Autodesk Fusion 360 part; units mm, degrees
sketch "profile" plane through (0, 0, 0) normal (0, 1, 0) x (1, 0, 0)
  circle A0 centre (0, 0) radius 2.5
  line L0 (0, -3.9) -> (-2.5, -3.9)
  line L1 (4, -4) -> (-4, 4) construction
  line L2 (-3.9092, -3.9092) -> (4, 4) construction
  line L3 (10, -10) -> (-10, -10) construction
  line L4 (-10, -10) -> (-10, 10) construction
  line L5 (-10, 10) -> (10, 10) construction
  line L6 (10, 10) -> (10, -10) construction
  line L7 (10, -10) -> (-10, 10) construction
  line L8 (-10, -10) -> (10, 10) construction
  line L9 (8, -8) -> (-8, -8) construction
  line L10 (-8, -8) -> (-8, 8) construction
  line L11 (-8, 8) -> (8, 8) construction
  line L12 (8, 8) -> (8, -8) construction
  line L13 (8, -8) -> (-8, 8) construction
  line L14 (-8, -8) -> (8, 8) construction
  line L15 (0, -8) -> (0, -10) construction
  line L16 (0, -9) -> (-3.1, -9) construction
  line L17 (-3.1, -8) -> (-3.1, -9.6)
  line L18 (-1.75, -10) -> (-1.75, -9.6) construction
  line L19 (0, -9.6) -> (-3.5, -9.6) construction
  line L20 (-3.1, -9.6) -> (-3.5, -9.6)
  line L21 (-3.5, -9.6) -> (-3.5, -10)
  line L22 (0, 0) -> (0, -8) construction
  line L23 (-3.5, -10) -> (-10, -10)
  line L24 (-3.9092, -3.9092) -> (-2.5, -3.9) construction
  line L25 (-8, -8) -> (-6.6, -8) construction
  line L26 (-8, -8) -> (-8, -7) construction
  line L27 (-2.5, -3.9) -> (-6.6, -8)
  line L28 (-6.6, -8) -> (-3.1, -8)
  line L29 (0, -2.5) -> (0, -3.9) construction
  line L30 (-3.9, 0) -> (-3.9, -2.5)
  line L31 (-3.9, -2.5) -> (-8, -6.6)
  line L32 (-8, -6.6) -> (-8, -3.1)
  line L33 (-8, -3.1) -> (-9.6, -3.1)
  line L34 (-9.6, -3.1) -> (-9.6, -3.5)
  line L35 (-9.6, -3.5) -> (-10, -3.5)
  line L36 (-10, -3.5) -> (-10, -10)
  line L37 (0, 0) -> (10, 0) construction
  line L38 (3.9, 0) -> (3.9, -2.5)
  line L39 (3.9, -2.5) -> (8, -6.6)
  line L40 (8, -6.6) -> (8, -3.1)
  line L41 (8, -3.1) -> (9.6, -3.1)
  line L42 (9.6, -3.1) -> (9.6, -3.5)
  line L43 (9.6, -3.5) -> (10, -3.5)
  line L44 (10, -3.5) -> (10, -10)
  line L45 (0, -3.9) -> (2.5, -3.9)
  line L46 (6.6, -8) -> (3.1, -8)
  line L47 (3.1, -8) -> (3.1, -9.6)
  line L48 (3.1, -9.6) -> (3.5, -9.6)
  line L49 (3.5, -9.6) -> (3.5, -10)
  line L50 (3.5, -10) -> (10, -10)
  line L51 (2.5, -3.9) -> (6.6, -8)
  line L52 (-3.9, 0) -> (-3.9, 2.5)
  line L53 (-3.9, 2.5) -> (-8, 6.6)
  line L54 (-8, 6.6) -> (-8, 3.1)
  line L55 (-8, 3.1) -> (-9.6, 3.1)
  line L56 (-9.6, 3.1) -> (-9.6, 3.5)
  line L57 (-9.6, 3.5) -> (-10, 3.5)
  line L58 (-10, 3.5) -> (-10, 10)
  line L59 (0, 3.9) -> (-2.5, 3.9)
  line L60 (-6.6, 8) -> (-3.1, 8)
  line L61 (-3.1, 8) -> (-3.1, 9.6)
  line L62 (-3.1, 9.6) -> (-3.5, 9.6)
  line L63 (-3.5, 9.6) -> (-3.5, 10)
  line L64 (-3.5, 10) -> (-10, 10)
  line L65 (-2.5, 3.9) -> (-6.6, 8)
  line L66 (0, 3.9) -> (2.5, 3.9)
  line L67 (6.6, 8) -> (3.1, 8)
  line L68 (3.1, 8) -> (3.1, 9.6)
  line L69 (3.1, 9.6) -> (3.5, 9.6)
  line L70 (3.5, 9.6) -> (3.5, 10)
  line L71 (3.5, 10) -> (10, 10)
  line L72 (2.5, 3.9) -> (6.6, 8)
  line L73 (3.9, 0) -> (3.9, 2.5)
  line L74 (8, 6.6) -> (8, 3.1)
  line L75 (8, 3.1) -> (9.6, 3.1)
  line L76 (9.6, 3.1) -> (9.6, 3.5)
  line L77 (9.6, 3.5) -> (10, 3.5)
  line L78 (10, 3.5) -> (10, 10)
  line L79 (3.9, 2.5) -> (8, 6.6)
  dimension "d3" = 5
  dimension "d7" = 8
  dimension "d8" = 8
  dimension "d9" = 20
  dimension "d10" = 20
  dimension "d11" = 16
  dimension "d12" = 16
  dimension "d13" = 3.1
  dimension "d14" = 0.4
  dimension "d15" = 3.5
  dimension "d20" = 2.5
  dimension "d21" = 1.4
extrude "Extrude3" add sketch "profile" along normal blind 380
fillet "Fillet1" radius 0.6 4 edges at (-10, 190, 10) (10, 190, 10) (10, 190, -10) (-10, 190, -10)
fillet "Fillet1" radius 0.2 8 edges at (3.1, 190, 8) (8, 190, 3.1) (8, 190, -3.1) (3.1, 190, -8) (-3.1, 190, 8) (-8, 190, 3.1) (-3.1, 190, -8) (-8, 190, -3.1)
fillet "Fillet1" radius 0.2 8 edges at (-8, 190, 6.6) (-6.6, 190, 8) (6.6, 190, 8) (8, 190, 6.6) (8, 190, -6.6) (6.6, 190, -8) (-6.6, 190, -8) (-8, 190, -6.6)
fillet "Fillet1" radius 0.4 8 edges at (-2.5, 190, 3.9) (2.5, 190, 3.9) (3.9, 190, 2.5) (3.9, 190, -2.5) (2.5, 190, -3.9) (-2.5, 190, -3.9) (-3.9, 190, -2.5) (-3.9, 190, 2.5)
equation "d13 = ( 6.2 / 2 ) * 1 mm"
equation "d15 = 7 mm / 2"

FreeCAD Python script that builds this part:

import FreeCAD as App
import Part
import Sketcher
from FreeCAD import Vector
Q = App.Units.Quantity


def edges_at(feature, points):
    """Names of the edges that pass closest to the given points."""
    edges = feature.Shape.Edges
    near = lambda p: min(range(len(edges)), key=lambda i: edges[i].distToShape(Part.Vertex(*p))[0])
    return sorted({f"Edge{near(p) + 1}" for p in points})

doc = App.newDocument("Part")
body = doc.addObject("PartDesign::Body", "Body")

# Sketch on XZ plane
sketch1 = body.newObject("Sketcher::SketchObject", "Sketch")
sketch1.AttachmentSupport = (doc.getObject("XZ_Plane"), [""])
sketch1.MapMode = "FlatFace"
sketch1.addGeometry([
    Part.LineSegment(Vector(-2.5, 3.9, 0), Vector(2.5, 3.9, 0)),  # 0
    Part.LineSegment(Vector(2.5, 3.9, 0), Vector(6.6, 8, 0)),  # 1
    Part.LineSegment(Vector(6.6, 8, 0), Vector(3.1, 8, 0)),  # 2
    Part.LineSegment(Vector(3.1, 8, 0), Vector(3.1, 9.6, 0)),  # 3
    Part.LineSegment(Vector(3.1, 9.6, 0), Vector(3.5, 9.6, 0)),  # 4
    Part.LineSegment(Vector(3.5, 9.6, 0), Vector(3.5, 10, 0)),  # 5
    Part.LineSegment(Vector(3.5, 10, 0), Vector(10, 10, 0)),  # 6
    Part.LineSegment(Vector(10, 10, 0), Vector(10, 3.5, 0)),  # 7
    Part.LineSegment(Vector(10, 3.5, 0), Vector(9.6, 3.5, 0)),  # 8
    Part.LineSegment(Vector(9.6, 3.5, 0), Vector(9.6, 3.1, 0)),  # 9
    Part.LineSegment(Vector(9.6, 3.1, 0), Vector(8, 3.1, 0)),  # 10
    Part.LineSegment(Vector(8, 3.1, 0), Vector(8, 6.6, 0)),  # 11
    Part.LineSegment(Vector(8, 6.6, 0), Vector(3.9, 2.5, 0)),  # 12
    Part.LineSegment(Vector(3.9, 2.5, 0), Vector(3.9, -2.5, 0)),  # 13
    Part.LineSegment(Vector(3.9, -2.5, 0), Vector(8, -6.6, 0)),  # 14
    Part.LineSegment(Vector(8, -6.6, 0), Vector(8, -3.1, 0)),  # 15
    Part.LineSegment(Vector(8, -3.1, 0), Vector(9.6, -3.1, 0)),  # 16
    Part.LineSegment(Vector(9.6, -3.1, 0), Vector(9.6, -3.5, 0)),  # 17
    Part.LineSegment(Vector(9.6, -3.5, 0), Vector(10, -3.5, 0)),  # 18
    Part.LineSegment(Vector(10, -3.5, 0), Vector(10, -10, 0)),  # 19
    Part.LineSegment(Vector(10, -10, 0), Vector(3.5, -10, 0)),  # 20
    Part.LineSegment(Vector(3.5, -10, 0), Vector(3.5, -9.6, 0)),  # 21
    Part.LineSegment(Vector(3.5, -9.6, 0), Vector(3.1, -9.6, 0)),  # 22
    Part.LineSegment(Vector(3.1, -9.6, 0), Vector(3.1, -8, 0)),  # 23
    Part.LineSegment(Vector(3.1, -8, 0), Vector(6.6, -8, 0)),  # 24
    Part.LineSegment(Vector(6.6, -8, 0), Vector(2.5, -3.9, 0)),  # 25
    Part.LineSegment(Vector(2.5, -3.9, 0), Vector(-2.5, -3.9, 0)),  # 26
    Part.LineSegment(Vector(-2.5, -3.9, 0), Vector(-6.6, -8, 0)),  # 27
    Part.LineSegment(Vector(-6.6, -8, 0), Vector(-3.1, -8, 0)),  # 28
    Part.LineSegment(Vector(-3.1, -8, 0), Vector(-3.1, -9.6, 0)),  # 29
    Part.LineSegment(Vector(-3.1, -9.6, 0), Vector(-3.5, -9.6, 0)),  # 30
    Part.LineSegment(Vector(-3.5, -9.6, 0), Vector(-3.5, -10, 0)),  # 31
    Part.LineSegment(Vector(-3.5, -10, 0), Vector(-10, -10, 0)),  # 32
    Part.LineSegment(Vector(-10, -10, 0), Vector(-10, -3.5, 0)),  # 33
    Part.LineSegment(Vector(-10, -3.5, 0), Vector(-9.6, -3.5, 0)),  # 34
    Part.LineSegment(Vector(-9.6, -3.5, 0), Vector(-9.6, -3.1, 0)),  # 35
    Part.LineSegment(Vector(-9.6, -3.1, 0), Vector(-8, -3.1, 0)),  # 36
    Part.LineSegment(Vector(-8, -3.1, 0), Vector(-8, -6.6, 0)),  # 37
    Part.LineSegment(Vector(-8, -6.6, 0), Vector(-3.9, -2.5, 0)),  # 38
    Part.LineSegment(Vector(-3.9, -2.5, 0), Vector(-3.9, 2.5, 0)),  # 39
    Part.LineSegment(Vector(-3.9, 2.5, 0), Vector(-8, 6.6, 0)),  # 40
    Part.LineSegment(Vector(-8, 6.6, 0), Vector(-8, 3.1, 0)),  # 41
    Part.LineSegment(Vector(-8, 3.1, 0), Vector(-9.6, 3.1, 0)),  # 42
    Part.LineSegment(Vector(-9.6, 3.1, 0), Vector(-9.6, 3.5, 0)),  # 43
    Part.LineSegment(Vector(-9.6, 3.5, 0), Vector(-10, 3.5, 0)),  # 44
    Part.LineSegment(Vector(-10, 3.5, 0), Vector(-10, 10, 0)),  # 45
    Part.LineSegment(Vector(-10, 10, 0), Vector(-3.5, 10, 0)),  # 46
    Part.LineSegment(Vector(-3.5, 10, 0), Vector(-3.5, 9.6, 0)),  # 47
    Part.LineSegment(Vector(-3.5, 9.6, 0), Vector(-3.1, 9.6, 0)),  # 48
    Part.LineSegment(Vector(-3.1, 9.6, 0), Vector(-3.1, 8, 0)),  # 49
    Part.LineSegment(Vector(-3.1, 8, 0), Vector(-6.6, 8, 0)),  # 50
    Part.LineSegment(Vector(-6.6, 8, 0), Vector(-2.5, 3.9, 0)),  # 51
    Part.Circle(Vector(0, 0, 0), Vector(0, 0, 1), 2.5),  # 52
], False)
sketch1.addConstraint([
    Sketcher.Constraint("Coincident", 0, 2, 1, 1),
    Sketcher.Constraint("Coincident", 1, 2, 2, 1),
    Sketcher.Constraint("Coincident", 2, 2, 3, 1),
    Sketcher.Constraint("Coincident", 3, 2, 4, 1),
    Sketcher.Constraint("Coincident", 4, 2, 5, 1),
    Sketcher.Constraint("Coincident", 5, 2, 6, 1),
    Sketcher.Constraint("Coincident", 6, 2, 7, 1),
    Sketcher.Constraint("Coincident", 7, 2, 8, 1),
    Sketcher.Constraint("Coincident", 8, 2, 9, 1),
    Sketcher.Constraint("Coincident", 9, 2, 10, 1),
    Sketcher.Constraint("Coincident", 10, 2, 11, 1),
    Sketcher.Constraint("Coincident", 11, 2, 12, 1),
    Sketcher.Constraint("Coincident", 12, 2, 13, 1),
    Sketcher.Constraint("Coincident", 13, 2, 14, 1),
    Sketcher.Constraint("Coincident", 14, 2, 15, 1),
    Sketcher.Constraint("Coincident", 15, 2, 16, 1),
    Sketcher.Constraint("Coincident", 16, 2, 17, 1),
    Sketcher.Constraint("Coincident", 17, 2, 18, 1),
    Sketcher.Constraint("Coincident", 18, 2, 19, 1),
    Sketcher.Constraint("Coincident", 19, 2, 20, 1),
    Sketcher.Constraint("Coincident", 20, 2, 21, 1),
    Sketcher.Constraint("Coincident", 21, 2, 22, 1),
    Sketcher.Constraint("Coincident", 22, 2, 23, 1),
    Sketcher.Constraint("Coincident", 23, 2, 24, 1),
    Sketcher.Constraint("Coincident", 24, 2, 25, 1),
    Sketcher.Constraint("Coincident", 25, 2, 26, 1),
    Sketcher.Constraint("Coincident", 26, 2, 27, 1),
    Sketcher.Constraint("Coincident", 27, 2, 28, 1),
    Sketcher.Constraint("Coincident", 28, 2, 29, 1),
    Sketcher.Constraint("Coincident", 29, 2, 30, 1),
    Sketcher.Constraint("Coincident", 30, 2, 31, 1),
    Sketcher.Constraint("Coincident", 31, 2, 32, 1),
    Sketcher.Constraint("Coincident", 32, 2, 33, 1),
    Sketcher.Constraint("Coincident", 33, 2, 34, 1),
    Sketcher.Constraint("Coincident", 34, 2, 35, 1),
    Sketcher.Constraint("Coincident", 35, 2, 36, 1),
    Sketcher.Constraint("Coincident", 36, 2, 37, 1),
    Sketcher.Constraint("Coincident", 37, 2, 38, 1),
    Sketcher.Constraint("Coincident", 38, 2, 39, 1),
    Sketcher.Constraint("Coincident", 39, 2, 40, 1),
    Sketcher.Constraint("Coincident", 40, 2, 41, 1),
    Sketcher.Constraint("Coincident", 41, 2, 42, 1),
    Sketcher.Constraint("Coincident", 42, 2, 43, 1),
    Sketcher.Constraint("Coincident", 43, 2, 44, 1),
    Sketcher.Constraint("Coincident", 44, 2, 45, 1),
    Sketcher.Constraint("Coincident", 45, 2, 46, 1),
    Sketcher.Constraint("Coincident", 46, 2, 47, 1),
    Sketcher.Constraint("Coincident", 47, 2, 48, 1),
    Sketcher.Constraint("Coincident", 48, 2, 49, 1),
    Sketcher.Constraint("Coincident", 49, 2, 50, 1),
    Sketcher.Constraint("Coincident", 50, 2, 51, 1),
    Sketcher.Constraint("Coincident", 51, 2, 0, 1),
    Sketcher.Constraint("Horizontal", 0),
    Sketcher.Constraint("Horizontal", 2),
    Sketcher.Constraint("Vertical", 3),
    Sketcher.Constraint("Horizontal", 4),
    Sketcher.Constraint("Vertical", 5),
    Sketcher.Constraint("Horizontal", 6),
    Sketcher.Constraint("Vertical", 7),
    Sketcher.Constraint("Horizontal", 8),
    Sketcher.Constraint("Vertical", 9),
    Sketcher.Constraint("Horizontal", 10),
    Sketcher.Constraint("Vertical", 11),
    Sketcher.Constraint("Vertical", 13),
    Sketcher.Constraint("Vertical", 15),
    Sketcher.Constraint("Horizontal", 16),
    Sketcher.Constraint("Vertical", 17),
    Sketcher.Constraint("Horizontal", 18),
    Sketcher.Constraint("Vertical", 19),
    Sketcher.Constraint("Horizontal", 20),
    Sketcher.Constraint("Vertical", 21),
    Sketcher.Constraint("Horizontal", 22),
    Sketcher.Constraint("Vertical", 23),
    Sketcher.Constraint("Horizontal", 24),
    Sketcher.Constraint("Horizontal", 26),
    Sketcher.Constraint("Horizontal", 28),
    Sketcher.Constraint("Vertical", 29),
    Sketcher.Constraint("Horizontal", 30),
    Sketcher.Constraint("Vertical", 31),
    Sketcher.Constraint("Horizontal", 32),
    Sketcher.Constraint("Vertical", 33),
    Sketcher.Constraint("Horizontal", 34),
    Sketcher.Constraint("Vertical", 35),
    Sketcher.Constraint("Horizontal", 36),
    Sketcher.Constraint("Vertical", 37),
    Sketcher.Constraint("Vertical", 39),
    Sketcher.Constraint("Vertical", 41),
    Sketcher.Constraint("Horizontal", 42),
    Sketcher.Constraint("Vertical", 43),
    Sketcher.Constraint("Horizontal", 44),
    Sketcher.Constraint("Vertical", 45),
    Sketcher.Constraint("Horizontal", 46),
    Sketcher.Constraint("Vertical", 47),
    Sketcher.Constraint("Horizontal", 48),
    Sketcher.Constraint("Vertical", 49),
    Sketcher.Constraint("Horizontal", 50),
    Sketcher.Constraint("Coincident", 52, 3, -1, 1),
    Sketcher.Constraint("Symmetric", 0, 2, 26, 2, -1, 1),
    Sketcher.Constraint("Symmetric", 1, 2, 27, 2, -1, 1),
    Sketcher.Constraint("Symmetric", 3, 2, 29, 2, -1, 1),
    Sketcher.Constraint("Symmetric", 5, 2, 31, 2, -1, 1),
    Sketcher.Constraint("Symmetric", 7, 2, 33, 2, -1, 1),
    Sketcher.Constraint("Symmetric", 9, 2, 35, 2, -1, 1),
    Sketcher.Constraint("Symmetric", 11, 2, 37, 2, -1, 1),
    Sketcher.Constraint("Symmetric", 12, 2, 38, 2, -1, 1),
    Sketcher.Constraint("Symmetric", 14, 2, 40, 2, -1, 1),
    Sketcher.Constraint("Symmetric", 16, 2, 42, 2, -1, 1),
    Sketcher.Constraint("Symmetric", 18, 2, 44, 2, -1, 1),
    Sketcher.Constraint("Symmetric", 20, 2, 46, 2, -1, 1),
    Sketcher.Constraint("Symmetric", 22, 2, 48, 2, -1, 1),
    Sketcher.Constraint("Symmetric", 24, 2, 50, 2, -1, 1),
    Sketcher.Constraint("Symmetric", 24, 2, 27, 2, -2),
    Sketcher.Constraint("Symmetric", 22, 2, 29, 2, -2),
    Sketcher.Constraint("Symmetric", 20, 2, 31, 2, -2),
    Sketcher.Constraint("Symmetric", 18, 2, 33, 2, -2),
    Sketcher.Constraint("Symmetric", 16, 2, 35, 2, -2),
    Sketcher.Constraint("Symmetric", 14, 2, 37, 2, -2),
    Sketcher.Constraint("Parallel", 1, 12),
    Sketcher.Constraint("Perpendicular", 12, 14),
    Sketcher.Constraint("Parallel", 14, 25),
    Sketcher.Constraint("Perpendicular", 38, 40),
    Sketcher.Constraint("Parallel", 40, 51),
    Sketcher.Constraint("Horizontal", 13, 2, 38, 2),
    Sketcher.Constraint("Equal", 4, 8),
    Sketcher.Constraint("Equal", 42, 3),
    Sketcher.Constraint("Equal", 48, 5),
    Sketcher.Constraint("Equal", 46, 7),
    Sketcher.Constraint("Equal", 5, 9),
    Sketcher.Constraint("Equal", 50, 11),
    Sketcher.Constraint("Equal", 26, 13),
    Sketcher.Constraint("Equal", 1, 12),
    Sketcher.Constraint("Diameter", 52, Q("5 mm")),
    Sketcher.Constraint("DistanceX", 0, 1, 0, 2, Q("5 mm")),
    Sketcher.Constraint("DistanceX", 2, 2, 2, 1, Q("3.5 mm")),
    Sketcher.Constraint("DistanceX", 4, 1, 4, 2, Q("0.4 mm")),
    Sketcher.Constraint("DistanceY", -1, 1, 1, 2, Q("8 mm")),
    Sketcher.Constraint("DistanceX", -1, 1, 2, 2, Q("3.1 mm")),
    Sketcher.Constraint("DistanceX", 6, 1, 6, 2, Q("6.5 mm")),
])
pad1 = body.newObject("PartDesign::Pad", "Pad")
pad1.Profile = sketch1
pad1.Length = 380
pad1.Reversed = True
doc.recompute()

fillet = body.newObject("PartDesign::Fillet", "Fillet")
fillet.Base = (pad1, edges_at(pad1, [
    (-10, 190, 10),
    (10, 190, 10),
    (10, 190, -10),
    (-10, 190, -10),
]))
fillet.Radius = 0.6
doc.recompute()

fillet2 = body.newObject("PartDesign::Fillet", "Fillet001")
fillet2.Base = (fillet, edges_at(fillet, [
    (3.1, 190, 8),
    (8, 190, 3.1),
    (8, 190, -3.1),
    (3.1, 190, -8),
    (-3.1, 190, 8),
    (-8, 190, 3.1),
    (-3.1, 190, -8),
    (-8, 190, -3.1),
]))
fillet2.Radius = 0.2
doc.recompute()

fillet3 = body.newObject("PartDesign::Fillet", "Fillet002")
fillet3.Base = (fillet2, edges_at(fillet2, [
    (-8, 190, 6.6),
    (-6.6, 190, 8),
    (6.6, 190, 8),
    (8, 190, 6.6),
    (8, 190, -6.6),
    (6.6, 190, -8),
    (-6.6, 190, -8),
    (-8, 190, -6.6),
]))
fillet3.Radius = 0.2
doc.recompute()

fillet4 = body.newObject("PartDesign::Fillet", "Fillet003")
fillet4.Base = (fillet3, edges_at(fillet3, [
    (-2.5, 190, 3.9),
    (2.5, 190, 3.9),
    (3.9, 190, 2.5),
    (3.9, 190, -2.5),
    (2.5, 190, -3.9),
    (-2.5, 190, -3.9),
    (-3.9, 190, -2.5),
    (-3.9, 190, 2.5),
]))
fillet4.Radius = 0.4

doc.recompute()
